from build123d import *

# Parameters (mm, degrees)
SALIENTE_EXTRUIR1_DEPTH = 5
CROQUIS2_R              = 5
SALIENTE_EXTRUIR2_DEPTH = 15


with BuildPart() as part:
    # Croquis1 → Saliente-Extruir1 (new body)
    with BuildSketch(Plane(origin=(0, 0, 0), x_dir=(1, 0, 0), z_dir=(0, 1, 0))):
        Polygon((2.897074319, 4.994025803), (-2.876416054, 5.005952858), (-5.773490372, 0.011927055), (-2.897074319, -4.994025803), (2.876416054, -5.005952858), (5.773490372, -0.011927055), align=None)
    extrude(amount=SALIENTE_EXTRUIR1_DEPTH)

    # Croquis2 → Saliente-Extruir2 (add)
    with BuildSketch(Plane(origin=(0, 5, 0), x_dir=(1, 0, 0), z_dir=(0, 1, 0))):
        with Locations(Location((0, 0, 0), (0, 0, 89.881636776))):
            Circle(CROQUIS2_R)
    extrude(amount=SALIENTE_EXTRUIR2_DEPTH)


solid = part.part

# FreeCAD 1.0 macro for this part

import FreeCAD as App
import Part
import Sketcher

V = App.Vector
Q = App.Units.Quantity


def add_polygon(sketch, points):
    """Adds a closed chain of lines whose ends are joined by coincident constraints."""
    first, n = sketch.GeometryCount, len(points)
    for a, b in zip(points, points[1:] + points[:1]):
        sketch.addGeometry(Part.LineSegment(App.Vector(*a, 0), App.Vector(*b, 0)), False)
    for i in range(n):
        sketch.addConstraint(Sketcher.Constraint("Coincident", first + i, 2, first + (i + 1) % n, 1))

doc = App.newDocument("Part")
params = doc.addObject("Spreadsheet::Sheet", "Params")
for row, (alias, value) in enumerate([
    ("pad1_length", "5 mm"),
    ("sketch2_diameter", "10 mm"),
    ("pad2_length", "15 mm"),
], start=1):
    params.set(f"A{row}", alias)
    params.set(f"B{row}", "=" + value)
    params.setAlias(f"B{row}", alias)

body = doc.addObject("PartDesign::Body", "Body")

# Sketch on XZ plane
sketch1 = body.newObject("Sketcher::SketchObject", "Sketch")
sketch1.AttachmentSupport = (doc.getObject("XZ_Plane"), [""])
sketch1.MapMode = "FlatFace"
add_polygon(sketch1, [(2.897074, -4.994026), (-2.876416, -5.005953), (-5.77349, -0.011927), (-2.897074, 4.994026), (2.876416, 5.005953), (5.77349, 0.011927)])  # lines 0-5
sketch1.addConstraint(Sketcher.Constraint("Symmetric", 0, 2, 3, 2, -1, 1))
sketch1.addConstraint(Sketcher.Constraint("Symmetric", 1, 2, 4, 2, -1, 1))
sketch1.addConstraint(Sketcher.Constraint("Symmetric", 2, 2, 5, 2, -1, 1))
sketch1.addConstraint(Sketcher.Constraint("Equal", 0, 1))
sketch1.addConstraint(Sketcher.Constraint("Equal", 1, 2))
sketch1.addConstraint(Sketcher.Constraint("DistanceY", 4, 2, 2, 2, Q("4.982099 mm")))
sketch1.addConstraint(Sketcher.Constraint("DistanceX", 1, 2, -1, 1, Q("5.77349 mm")))
sketch1.addConstraint(Sketcher.Constraint("DistanceX", 2, 2, 0, 2, Q("0.020658 mm")))
sketch1.addConstraint(Sketcher.Constraint("DistanceY", 0, 2, 2, 2, Q("9.999979 mm")))
pad1 = body.newObject("PartDesign::Pad", "Pad")
pad1.Profile = sketch1
pad1.setExpression("Length", "Params.pad1_length")
pad1.Reversed = True

# Sketch on XZ plane
sketch2 = body.newObject("Sketcher::SketchObject", "Sketch001")
sketch2.AttachmentSupport = (doc.getObject("XZ_Plane"), [""])
sketch2.MapMode = "FlatFace"
sketch2.AttachmentOffset = App.Placement(V(0, 0, -5), App.Rotation())
sketch2.addGeometry(Part.Circle(V(0, 0, 0), V(0, 0, 1), 5), False)
sketch2.addConstraint(Sketcher.Constraint("Coincident", 0, 3, -1, 1))
sketch2.addConstraint(Sketcher.Constraint("Diameter", 0, Q("10 mm")))
sketch2.setExpression("Constraints[1]", "Params.sketch2_diameter")
pad2 = body.newObject("PartDesign::Pad", "Pad001")
pad2.Profile = sketch2
pad2.setExpression("Length", "Params.pad2_length")
pad2.Reversed = True

doc.recompute()
